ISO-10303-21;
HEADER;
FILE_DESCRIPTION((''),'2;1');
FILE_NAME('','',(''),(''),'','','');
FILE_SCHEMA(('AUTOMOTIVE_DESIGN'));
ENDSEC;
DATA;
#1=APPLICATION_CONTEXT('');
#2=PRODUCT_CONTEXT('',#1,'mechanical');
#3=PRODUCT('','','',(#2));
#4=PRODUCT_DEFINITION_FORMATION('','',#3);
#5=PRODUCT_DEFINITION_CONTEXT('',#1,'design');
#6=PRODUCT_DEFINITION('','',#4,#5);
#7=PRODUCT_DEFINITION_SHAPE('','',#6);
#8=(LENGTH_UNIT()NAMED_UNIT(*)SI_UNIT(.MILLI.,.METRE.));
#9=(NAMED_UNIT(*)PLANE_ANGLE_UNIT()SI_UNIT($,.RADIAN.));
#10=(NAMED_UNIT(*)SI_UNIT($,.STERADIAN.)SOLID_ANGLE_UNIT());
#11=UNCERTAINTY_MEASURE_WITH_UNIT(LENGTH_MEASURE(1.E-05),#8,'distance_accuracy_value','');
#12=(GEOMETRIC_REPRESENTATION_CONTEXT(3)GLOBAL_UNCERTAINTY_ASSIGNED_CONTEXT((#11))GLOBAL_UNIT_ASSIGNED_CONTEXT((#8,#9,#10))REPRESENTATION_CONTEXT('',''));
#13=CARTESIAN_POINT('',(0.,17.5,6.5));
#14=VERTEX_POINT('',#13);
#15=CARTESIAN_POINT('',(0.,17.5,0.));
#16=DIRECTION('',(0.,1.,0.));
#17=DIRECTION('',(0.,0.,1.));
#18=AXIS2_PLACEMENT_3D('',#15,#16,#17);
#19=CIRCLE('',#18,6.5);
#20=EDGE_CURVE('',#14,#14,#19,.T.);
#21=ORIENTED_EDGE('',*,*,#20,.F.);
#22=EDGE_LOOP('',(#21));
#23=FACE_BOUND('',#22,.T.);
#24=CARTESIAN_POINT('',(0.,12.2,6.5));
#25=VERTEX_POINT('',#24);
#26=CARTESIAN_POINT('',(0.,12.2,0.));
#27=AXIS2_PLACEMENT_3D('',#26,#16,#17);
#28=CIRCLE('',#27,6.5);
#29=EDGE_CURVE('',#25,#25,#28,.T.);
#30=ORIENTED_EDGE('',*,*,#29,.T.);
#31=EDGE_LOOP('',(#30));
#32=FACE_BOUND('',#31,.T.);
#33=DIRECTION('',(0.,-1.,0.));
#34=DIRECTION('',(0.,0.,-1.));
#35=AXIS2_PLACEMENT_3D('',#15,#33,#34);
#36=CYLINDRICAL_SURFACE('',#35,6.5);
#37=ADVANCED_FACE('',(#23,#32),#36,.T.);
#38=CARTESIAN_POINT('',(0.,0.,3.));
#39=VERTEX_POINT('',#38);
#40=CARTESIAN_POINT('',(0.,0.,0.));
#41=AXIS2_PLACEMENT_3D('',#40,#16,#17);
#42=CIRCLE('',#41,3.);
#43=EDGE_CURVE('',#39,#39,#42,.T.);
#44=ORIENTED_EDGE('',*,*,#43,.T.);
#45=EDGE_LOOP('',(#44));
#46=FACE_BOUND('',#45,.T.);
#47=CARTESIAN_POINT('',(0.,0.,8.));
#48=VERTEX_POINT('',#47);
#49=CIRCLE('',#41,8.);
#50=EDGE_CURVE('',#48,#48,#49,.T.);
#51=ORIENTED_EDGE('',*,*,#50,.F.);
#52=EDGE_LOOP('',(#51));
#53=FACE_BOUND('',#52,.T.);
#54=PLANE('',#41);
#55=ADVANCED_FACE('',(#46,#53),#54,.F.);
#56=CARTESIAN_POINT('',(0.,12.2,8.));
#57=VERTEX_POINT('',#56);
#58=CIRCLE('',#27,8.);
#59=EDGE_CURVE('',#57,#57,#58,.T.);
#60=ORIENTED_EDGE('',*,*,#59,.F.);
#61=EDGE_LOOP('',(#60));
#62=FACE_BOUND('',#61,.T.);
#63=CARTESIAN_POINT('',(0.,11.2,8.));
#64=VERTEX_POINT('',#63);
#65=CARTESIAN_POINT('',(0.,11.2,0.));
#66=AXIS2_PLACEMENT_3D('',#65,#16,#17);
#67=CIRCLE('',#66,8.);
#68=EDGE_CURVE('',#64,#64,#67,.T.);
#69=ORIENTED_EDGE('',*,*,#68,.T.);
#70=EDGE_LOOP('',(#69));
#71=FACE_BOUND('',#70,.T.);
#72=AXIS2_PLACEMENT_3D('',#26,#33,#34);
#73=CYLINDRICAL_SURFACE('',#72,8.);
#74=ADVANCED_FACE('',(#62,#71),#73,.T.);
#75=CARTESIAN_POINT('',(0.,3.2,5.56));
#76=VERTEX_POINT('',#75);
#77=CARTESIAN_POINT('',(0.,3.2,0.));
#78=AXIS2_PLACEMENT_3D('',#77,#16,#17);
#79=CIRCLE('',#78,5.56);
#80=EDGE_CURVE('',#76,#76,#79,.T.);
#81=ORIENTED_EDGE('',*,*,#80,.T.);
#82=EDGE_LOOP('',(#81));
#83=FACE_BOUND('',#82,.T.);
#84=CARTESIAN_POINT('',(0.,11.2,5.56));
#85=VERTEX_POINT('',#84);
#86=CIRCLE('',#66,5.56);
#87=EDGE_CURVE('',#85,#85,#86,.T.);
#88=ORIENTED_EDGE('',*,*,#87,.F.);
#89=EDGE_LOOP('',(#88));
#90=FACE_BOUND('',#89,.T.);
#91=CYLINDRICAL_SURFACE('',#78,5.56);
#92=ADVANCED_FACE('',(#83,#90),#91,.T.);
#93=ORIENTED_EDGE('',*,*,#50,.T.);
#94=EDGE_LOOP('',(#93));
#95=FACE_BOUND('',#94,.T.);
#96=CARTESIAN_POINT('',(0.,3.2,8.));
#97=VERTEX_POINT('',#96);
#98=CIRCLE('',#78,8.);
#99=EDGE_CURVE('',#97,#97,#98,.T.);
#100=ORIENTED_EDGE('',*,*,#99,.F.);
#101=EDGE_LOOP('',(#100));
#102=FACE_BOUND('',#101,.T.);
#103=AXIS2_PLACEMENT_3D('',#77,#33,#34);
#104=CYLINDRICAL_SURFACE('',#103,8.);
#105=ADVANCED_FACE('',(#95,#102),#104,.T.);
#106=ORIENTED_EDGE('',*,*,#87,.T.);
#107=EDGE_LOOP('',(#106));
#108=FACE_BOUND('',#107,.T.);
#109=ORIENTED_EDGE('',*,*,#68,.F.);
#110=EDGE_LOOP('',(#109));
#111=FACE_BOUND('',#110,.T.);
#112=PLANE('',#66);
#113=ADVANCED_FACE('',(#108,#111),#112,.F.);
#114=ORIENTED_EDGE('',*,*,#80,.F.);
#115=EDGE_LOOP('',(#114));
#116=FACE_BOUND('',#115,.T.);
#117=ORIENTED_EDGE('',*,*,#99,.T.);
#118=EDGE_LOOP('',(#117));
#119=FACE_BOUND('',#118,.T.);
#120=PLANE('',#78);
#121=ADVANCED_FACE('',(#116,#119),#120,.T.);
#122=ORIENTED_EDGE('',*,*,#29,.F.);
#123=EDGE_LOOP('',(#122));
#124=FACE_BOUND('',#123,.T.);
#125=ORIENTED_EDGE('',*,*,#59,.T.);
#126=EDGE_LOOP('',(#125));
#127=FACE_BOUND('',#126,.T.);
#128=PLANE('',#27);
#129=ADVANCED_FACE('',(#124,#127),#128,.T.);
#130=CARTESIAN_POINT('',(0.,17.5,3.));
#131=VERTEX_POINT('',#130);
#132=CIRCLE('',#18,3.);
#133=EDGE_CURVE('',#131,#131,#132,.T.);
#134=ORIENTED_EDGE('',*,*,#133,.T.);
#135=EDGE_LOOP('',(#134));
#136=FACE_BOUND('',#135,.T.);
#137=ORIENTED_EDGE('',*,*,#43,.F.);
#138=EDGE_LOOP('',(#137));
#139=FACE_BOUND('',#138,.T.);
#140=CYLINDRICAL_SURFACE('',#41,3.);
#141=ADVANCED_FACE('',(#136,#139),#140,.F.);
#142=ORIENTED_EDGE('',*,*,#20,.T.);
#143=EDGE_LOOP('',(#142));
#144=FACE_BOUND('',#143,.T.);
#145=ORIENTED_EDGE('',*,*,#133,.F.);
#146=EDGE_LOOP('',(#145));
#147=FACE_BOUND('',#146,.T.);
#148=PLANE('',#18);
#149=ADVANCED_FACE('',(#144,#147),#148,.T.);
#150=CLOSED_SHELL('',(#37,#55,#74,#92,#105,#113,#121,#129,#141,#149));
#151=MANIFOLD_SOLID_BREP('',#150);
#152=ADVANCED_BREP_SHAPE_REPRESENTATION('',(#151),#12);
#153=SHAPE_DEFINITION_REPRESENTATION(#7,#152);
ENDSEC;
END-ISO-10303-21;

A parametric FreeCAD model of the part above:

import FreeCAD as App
import Part
import Sketcher
Q = App.Units.Quantity

doc = App.newDocument("Part")
params = doc.addObject("Spreadsheet::Sheet", "Params")
for row, (alias, value) in enumerate([
    ("sketch1_diameter", "13 mm"),
    ("pad1_length", "17.5 mm"),
    ("sketch2_diameter", "11.12 mm"),
    ("pocket1_length", "8 mm"),
    ("sketch3_diameter", "6 mm"),
    ("sketch4_diameter", "16 mm"),
    ("pad2_length", "1 mm"),
    ("sketch5_diameter", "16 mm"),
    ("sketch5_diameter2", "6 mm"),
    ("pad3_length", "3.2 mm"),
], start=1):
    params.set(f"A{row}", alias)
    params.set(f"B{row}", "=" + value)
    params.setAlias(f"B{row}", alias)

body = doc.addObject("PartDesign::Body", "Body")

sketch1 = doc.addObject("Sketcher::SketchObject", "Sketch")
body.addObject(sketch1)
sketch1.AttachmentSupport = (doc.XZ_Plane, [""])
sketch1.MapMode = "FlatFace"
sketch1.addGeometry(Part.Circle(App.Vector(0, 0, 0), App.Vector(0, 0, 1), 6), False)
sketch1.addConstraint([
    Sketcher.Constraint("Coincident", 0, 3, -1, 1),
    Sketcher.Constraint("Diameter", 0, Q("13 mm")),
])
sketch1.setExpression("Constraints[1]", "Params.sketch1_diameter")
pad1 = doc.addObject("PartDesign::Pad", "Pad")
body.addObject(pad1)
pad1.Profile = sketch1
pad1.setExpression("Length", "Params.pad1_length")
pad1.Reversed = True

sketch2 = doc.addObject("Sketcher::SketchObject", "Sketch001")
body.addObject(sketch2)
sketch2.AttachmentSupport = (doc.XZ_Plane, [""])
sketch2.MapMode = "FlatFace"
sketch2.AttachmentOffset = App.Placement(App.Vector(0, 0, -11.2), App.Rotation())
sketch2.addGeometry([
    Part.Circle(App.Vector(0, 0, 0), App.Vector(0, 0, 1), 9),
    Part.Circle(App.Vector(0, 0, 0), App.Vector(0, 0, 1), 6),
], False)
sketch2.addConstraint([
    Sketcher.Constraint("Coincident", 0, 3, -1, 1),
    Sketcher.Constraint("Coincident", 1, 3, -1, 1),
    Sketcher.Constraint("Diameter", 1, Q("11.12 mm")),
    Sketcher.Constraint("Diameter", 0, Q("17.244983 mm")),
])
sketch2.setExpression("Constraints[2]", "Params.sketch2_diameter")
pocket1 = doc.addObject("PartDesign::Pocket", "Pocket")
body.addObject(pocket1)
pocket1.Profile = sketch2
pocket1.setExpression("Length", "Params.pocket1_length")
pocket1.Reversed = True

sketch3 = doc.addObject("Sketcher::SketchObject", "Sketch002")
body.addObject(sketch3)
sketch3.AttachmentSupport = (doc.XZ_Plane, [""])
sketch3.MapMode = "FlatFace"
sketch3.AttachmentOffset = App.Placement(App.Vector(0, 0, -17.5), App.Rotation())
sketch3.addGeometry(Part.Circle(App.Vector(0, 0, 0), App.Vector(0, 0, 1), 3), False)
sketch3.addConstraint([
    Sketcher.Constraint("Coincident", 0, 3, -1, 1),
    Sketcher.Constraint("Diameter", 0, Q("6 mm")),
])
sketch3.setExpression("Constraints[1]", "Params.sketch3_diameter")
pocket2 = doc.addObject("PartDesign::Pocket", "Pocket001")
body.addObject(pocket2)
pocket2.Profile = sketch3
pocket2.Type = "ThroughAll"
pocket2.Midplane = True

sketch4 = doc.addObject("Sketcher::SketchObject", "Sketch003")
body.addObject(sketch4)
sketch4.AttachmentSupport = (doc.XZ_Plane, [""])
sketch4.MapMode = "FlatFace"
sketch4.AttachmentOffset = App.Placement(App.Vector(0, 0, -11.2), App.Rotation())
sketch4.addGeometry([
    Part.Circle(App.Vector(0, 0, 0), App.Vector(0, 0, 1), 8),
    Part.Circle(App.Vector(0, 0, 0), App.Vector(0, 0, 1), 3.9),
], False)
sketch4.addConstraint([
    Sketcher.Constraint("Coincident", 0, 3, -1, 1),
    Sketcher.Constraint("Coincident", 1, 3, -1, 1),
    Sketcher.Constraint("Diameter", 0, Q("16 mm")),
    Sketcher.Constraint("Diameter", 1, Q("7.73837 mm")),
])
sketch4.setExpression("Constraints[2]", "Params.sketch4_diameter")
pad2 = doc.addObject("PartDesign::Pad", "Pad001")
body.addObject(pad2)
pad2.Profile = sketch4
pad2.setExpression("Length", "Params.pad2_length")
pad2.Reversed = True

sketch5 = doc.addObject("Sketcher::SketchObject", "Sketch004")
body.addObject(sketch5)
sketch5.AttachmentSupport = (doc.XZ_Plane, [""])
sketch5.MapMode = "FlatFace"
sketch5.addGeometry([
    Part.Circle(App.Vector(0, 0, 0), App.Vector(0, 0, 1), 8),
    Part.Circle(App.Vector(0, 0, 0), App.Vector(0, 0, 1), 3),
], False)
sketch5.addConstraint([
    Sketcher.Constraint("Coincident", 0, 3, -1, 1),
    Sketcher.Constraint("Coincident", 1, 3, -1, 1),
    Sketcher.Constraint("Diameter", 0, Q("16 mm")),
    Sketcher.Constraint("Diameter", 1, Q("6 mm")),
])
sketch5.setExpression("Constraints[2]", "Params.sketch5_diameter")
sketch5.setExpression("Constraints[3]", "Params.sketch5_diameter2")
pad3 = doc.addObject("PartDesign::Pad", "Pad002")
body.addObject(pad3)
pad3.Profile = sketch5
pad3.setExpression("Length", "Params.pad3_length")
pad3.Reversed = True

doc.recompute()
